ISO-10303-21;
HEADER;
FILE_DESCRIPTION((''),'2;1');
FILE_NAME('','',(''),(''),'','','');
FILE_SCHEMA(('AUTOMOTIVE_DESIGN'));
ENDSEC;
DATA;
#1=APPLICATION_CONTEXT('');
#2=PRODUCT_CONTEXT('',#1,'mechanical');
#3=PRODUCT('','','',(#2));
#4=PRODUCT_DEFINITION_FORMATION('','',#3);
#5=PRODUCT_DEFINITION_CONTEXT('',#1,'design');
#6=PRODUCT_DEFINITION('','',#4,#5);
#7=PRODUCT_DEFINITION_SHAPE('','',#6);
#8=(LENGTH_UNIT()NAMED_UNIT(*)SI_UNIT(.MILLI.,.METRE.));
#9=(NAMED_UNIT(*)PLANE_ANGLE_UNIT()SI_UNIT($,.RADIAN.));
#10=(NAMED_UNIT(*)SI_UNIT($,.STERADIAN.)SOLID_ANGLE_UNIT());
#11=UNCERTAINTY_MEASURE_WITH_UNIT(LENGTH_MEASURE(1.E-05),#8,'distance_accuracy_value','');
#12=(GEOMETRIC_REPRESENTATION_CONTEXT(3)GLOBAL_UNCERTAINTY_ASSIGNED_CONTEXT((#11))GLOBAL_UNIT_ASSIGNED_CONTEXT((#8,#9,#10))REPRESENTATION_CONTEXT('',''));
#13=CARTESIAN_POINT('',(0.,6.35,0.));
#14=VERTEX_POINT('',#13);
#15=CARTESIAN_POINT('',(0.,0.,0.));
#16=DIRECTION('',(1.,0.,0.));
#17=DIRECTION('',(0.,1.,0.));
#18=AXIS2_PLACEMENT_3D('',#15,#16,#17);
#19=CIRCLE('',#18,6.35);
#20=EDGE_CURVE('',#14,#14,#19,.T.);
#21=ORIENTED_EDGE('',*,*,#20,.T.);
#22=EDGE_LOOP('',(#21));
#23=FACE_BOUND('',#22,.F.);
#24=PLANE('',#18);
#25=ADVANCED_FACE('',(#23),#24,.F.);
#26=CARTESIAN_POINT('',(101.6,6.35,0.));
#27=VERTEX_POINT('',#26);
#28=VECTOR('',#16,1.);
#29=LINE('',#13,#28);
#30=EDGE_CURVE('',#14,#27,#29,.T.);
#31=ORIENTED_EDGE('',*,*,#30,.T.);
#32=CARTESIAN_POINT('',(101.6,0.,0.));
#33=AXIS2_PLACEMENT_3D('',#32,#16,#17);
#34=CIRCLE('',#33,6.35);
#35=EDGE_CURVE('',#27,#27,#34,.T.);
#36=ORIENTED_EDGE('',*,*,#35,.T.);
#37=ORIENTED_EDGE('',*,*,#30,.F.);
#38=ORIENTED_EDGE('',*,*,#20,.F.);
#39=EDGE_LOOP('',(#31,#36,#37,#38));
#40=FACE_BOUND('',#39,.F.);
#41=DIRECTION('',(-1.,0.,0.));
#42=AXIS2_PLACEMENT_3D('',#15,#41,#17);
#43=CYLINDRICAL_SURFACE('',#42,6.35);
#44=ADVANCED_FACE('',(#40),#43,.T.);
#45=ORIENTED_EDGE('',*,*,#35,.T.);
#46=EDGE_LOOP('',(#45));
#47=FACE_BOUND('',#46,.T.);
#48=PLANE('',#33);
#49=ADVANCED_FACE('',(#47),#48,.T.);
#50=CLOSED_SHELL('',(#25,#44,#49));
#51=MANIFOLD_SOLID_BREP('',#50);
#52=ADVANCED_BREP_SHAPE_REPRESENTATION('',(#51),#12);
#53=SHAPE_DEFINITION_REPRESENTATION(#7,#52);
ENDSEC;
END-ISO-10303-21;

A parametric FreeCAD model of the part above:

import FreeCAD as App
import Part
import Sketcher
from FreeCAD import Vector
Q = App.Units.Quantity

doc = App.newDocument("Part")
body = doc.addObject("PartDesign::Body", "Body")

sketch1 = body.newObject("Sketcher::SketchObject", "Sketch")
sketch1.AttachmentSupport = (doc.getObject("YZ_Plane"), [""])
sketch1.MapMode = "FlatFace"
sketch1.addGeometry(Part.Circle(Vector(0, 0, 0), Vector(0, 0, 1), 6.35), False)
sketch1.addConstraint([
    Sketcher.Constraint("Coincident", 0, 3, -1, 1),
    Sketcher.Constraint("Diameter", 0, Q("0.5 in")),
])
pad1 = body.newObject("PartDesign::Pad", "Pad")
pad1.Profile = sketch1
pad1.Length = Q("4 in")

doc.recompute()
